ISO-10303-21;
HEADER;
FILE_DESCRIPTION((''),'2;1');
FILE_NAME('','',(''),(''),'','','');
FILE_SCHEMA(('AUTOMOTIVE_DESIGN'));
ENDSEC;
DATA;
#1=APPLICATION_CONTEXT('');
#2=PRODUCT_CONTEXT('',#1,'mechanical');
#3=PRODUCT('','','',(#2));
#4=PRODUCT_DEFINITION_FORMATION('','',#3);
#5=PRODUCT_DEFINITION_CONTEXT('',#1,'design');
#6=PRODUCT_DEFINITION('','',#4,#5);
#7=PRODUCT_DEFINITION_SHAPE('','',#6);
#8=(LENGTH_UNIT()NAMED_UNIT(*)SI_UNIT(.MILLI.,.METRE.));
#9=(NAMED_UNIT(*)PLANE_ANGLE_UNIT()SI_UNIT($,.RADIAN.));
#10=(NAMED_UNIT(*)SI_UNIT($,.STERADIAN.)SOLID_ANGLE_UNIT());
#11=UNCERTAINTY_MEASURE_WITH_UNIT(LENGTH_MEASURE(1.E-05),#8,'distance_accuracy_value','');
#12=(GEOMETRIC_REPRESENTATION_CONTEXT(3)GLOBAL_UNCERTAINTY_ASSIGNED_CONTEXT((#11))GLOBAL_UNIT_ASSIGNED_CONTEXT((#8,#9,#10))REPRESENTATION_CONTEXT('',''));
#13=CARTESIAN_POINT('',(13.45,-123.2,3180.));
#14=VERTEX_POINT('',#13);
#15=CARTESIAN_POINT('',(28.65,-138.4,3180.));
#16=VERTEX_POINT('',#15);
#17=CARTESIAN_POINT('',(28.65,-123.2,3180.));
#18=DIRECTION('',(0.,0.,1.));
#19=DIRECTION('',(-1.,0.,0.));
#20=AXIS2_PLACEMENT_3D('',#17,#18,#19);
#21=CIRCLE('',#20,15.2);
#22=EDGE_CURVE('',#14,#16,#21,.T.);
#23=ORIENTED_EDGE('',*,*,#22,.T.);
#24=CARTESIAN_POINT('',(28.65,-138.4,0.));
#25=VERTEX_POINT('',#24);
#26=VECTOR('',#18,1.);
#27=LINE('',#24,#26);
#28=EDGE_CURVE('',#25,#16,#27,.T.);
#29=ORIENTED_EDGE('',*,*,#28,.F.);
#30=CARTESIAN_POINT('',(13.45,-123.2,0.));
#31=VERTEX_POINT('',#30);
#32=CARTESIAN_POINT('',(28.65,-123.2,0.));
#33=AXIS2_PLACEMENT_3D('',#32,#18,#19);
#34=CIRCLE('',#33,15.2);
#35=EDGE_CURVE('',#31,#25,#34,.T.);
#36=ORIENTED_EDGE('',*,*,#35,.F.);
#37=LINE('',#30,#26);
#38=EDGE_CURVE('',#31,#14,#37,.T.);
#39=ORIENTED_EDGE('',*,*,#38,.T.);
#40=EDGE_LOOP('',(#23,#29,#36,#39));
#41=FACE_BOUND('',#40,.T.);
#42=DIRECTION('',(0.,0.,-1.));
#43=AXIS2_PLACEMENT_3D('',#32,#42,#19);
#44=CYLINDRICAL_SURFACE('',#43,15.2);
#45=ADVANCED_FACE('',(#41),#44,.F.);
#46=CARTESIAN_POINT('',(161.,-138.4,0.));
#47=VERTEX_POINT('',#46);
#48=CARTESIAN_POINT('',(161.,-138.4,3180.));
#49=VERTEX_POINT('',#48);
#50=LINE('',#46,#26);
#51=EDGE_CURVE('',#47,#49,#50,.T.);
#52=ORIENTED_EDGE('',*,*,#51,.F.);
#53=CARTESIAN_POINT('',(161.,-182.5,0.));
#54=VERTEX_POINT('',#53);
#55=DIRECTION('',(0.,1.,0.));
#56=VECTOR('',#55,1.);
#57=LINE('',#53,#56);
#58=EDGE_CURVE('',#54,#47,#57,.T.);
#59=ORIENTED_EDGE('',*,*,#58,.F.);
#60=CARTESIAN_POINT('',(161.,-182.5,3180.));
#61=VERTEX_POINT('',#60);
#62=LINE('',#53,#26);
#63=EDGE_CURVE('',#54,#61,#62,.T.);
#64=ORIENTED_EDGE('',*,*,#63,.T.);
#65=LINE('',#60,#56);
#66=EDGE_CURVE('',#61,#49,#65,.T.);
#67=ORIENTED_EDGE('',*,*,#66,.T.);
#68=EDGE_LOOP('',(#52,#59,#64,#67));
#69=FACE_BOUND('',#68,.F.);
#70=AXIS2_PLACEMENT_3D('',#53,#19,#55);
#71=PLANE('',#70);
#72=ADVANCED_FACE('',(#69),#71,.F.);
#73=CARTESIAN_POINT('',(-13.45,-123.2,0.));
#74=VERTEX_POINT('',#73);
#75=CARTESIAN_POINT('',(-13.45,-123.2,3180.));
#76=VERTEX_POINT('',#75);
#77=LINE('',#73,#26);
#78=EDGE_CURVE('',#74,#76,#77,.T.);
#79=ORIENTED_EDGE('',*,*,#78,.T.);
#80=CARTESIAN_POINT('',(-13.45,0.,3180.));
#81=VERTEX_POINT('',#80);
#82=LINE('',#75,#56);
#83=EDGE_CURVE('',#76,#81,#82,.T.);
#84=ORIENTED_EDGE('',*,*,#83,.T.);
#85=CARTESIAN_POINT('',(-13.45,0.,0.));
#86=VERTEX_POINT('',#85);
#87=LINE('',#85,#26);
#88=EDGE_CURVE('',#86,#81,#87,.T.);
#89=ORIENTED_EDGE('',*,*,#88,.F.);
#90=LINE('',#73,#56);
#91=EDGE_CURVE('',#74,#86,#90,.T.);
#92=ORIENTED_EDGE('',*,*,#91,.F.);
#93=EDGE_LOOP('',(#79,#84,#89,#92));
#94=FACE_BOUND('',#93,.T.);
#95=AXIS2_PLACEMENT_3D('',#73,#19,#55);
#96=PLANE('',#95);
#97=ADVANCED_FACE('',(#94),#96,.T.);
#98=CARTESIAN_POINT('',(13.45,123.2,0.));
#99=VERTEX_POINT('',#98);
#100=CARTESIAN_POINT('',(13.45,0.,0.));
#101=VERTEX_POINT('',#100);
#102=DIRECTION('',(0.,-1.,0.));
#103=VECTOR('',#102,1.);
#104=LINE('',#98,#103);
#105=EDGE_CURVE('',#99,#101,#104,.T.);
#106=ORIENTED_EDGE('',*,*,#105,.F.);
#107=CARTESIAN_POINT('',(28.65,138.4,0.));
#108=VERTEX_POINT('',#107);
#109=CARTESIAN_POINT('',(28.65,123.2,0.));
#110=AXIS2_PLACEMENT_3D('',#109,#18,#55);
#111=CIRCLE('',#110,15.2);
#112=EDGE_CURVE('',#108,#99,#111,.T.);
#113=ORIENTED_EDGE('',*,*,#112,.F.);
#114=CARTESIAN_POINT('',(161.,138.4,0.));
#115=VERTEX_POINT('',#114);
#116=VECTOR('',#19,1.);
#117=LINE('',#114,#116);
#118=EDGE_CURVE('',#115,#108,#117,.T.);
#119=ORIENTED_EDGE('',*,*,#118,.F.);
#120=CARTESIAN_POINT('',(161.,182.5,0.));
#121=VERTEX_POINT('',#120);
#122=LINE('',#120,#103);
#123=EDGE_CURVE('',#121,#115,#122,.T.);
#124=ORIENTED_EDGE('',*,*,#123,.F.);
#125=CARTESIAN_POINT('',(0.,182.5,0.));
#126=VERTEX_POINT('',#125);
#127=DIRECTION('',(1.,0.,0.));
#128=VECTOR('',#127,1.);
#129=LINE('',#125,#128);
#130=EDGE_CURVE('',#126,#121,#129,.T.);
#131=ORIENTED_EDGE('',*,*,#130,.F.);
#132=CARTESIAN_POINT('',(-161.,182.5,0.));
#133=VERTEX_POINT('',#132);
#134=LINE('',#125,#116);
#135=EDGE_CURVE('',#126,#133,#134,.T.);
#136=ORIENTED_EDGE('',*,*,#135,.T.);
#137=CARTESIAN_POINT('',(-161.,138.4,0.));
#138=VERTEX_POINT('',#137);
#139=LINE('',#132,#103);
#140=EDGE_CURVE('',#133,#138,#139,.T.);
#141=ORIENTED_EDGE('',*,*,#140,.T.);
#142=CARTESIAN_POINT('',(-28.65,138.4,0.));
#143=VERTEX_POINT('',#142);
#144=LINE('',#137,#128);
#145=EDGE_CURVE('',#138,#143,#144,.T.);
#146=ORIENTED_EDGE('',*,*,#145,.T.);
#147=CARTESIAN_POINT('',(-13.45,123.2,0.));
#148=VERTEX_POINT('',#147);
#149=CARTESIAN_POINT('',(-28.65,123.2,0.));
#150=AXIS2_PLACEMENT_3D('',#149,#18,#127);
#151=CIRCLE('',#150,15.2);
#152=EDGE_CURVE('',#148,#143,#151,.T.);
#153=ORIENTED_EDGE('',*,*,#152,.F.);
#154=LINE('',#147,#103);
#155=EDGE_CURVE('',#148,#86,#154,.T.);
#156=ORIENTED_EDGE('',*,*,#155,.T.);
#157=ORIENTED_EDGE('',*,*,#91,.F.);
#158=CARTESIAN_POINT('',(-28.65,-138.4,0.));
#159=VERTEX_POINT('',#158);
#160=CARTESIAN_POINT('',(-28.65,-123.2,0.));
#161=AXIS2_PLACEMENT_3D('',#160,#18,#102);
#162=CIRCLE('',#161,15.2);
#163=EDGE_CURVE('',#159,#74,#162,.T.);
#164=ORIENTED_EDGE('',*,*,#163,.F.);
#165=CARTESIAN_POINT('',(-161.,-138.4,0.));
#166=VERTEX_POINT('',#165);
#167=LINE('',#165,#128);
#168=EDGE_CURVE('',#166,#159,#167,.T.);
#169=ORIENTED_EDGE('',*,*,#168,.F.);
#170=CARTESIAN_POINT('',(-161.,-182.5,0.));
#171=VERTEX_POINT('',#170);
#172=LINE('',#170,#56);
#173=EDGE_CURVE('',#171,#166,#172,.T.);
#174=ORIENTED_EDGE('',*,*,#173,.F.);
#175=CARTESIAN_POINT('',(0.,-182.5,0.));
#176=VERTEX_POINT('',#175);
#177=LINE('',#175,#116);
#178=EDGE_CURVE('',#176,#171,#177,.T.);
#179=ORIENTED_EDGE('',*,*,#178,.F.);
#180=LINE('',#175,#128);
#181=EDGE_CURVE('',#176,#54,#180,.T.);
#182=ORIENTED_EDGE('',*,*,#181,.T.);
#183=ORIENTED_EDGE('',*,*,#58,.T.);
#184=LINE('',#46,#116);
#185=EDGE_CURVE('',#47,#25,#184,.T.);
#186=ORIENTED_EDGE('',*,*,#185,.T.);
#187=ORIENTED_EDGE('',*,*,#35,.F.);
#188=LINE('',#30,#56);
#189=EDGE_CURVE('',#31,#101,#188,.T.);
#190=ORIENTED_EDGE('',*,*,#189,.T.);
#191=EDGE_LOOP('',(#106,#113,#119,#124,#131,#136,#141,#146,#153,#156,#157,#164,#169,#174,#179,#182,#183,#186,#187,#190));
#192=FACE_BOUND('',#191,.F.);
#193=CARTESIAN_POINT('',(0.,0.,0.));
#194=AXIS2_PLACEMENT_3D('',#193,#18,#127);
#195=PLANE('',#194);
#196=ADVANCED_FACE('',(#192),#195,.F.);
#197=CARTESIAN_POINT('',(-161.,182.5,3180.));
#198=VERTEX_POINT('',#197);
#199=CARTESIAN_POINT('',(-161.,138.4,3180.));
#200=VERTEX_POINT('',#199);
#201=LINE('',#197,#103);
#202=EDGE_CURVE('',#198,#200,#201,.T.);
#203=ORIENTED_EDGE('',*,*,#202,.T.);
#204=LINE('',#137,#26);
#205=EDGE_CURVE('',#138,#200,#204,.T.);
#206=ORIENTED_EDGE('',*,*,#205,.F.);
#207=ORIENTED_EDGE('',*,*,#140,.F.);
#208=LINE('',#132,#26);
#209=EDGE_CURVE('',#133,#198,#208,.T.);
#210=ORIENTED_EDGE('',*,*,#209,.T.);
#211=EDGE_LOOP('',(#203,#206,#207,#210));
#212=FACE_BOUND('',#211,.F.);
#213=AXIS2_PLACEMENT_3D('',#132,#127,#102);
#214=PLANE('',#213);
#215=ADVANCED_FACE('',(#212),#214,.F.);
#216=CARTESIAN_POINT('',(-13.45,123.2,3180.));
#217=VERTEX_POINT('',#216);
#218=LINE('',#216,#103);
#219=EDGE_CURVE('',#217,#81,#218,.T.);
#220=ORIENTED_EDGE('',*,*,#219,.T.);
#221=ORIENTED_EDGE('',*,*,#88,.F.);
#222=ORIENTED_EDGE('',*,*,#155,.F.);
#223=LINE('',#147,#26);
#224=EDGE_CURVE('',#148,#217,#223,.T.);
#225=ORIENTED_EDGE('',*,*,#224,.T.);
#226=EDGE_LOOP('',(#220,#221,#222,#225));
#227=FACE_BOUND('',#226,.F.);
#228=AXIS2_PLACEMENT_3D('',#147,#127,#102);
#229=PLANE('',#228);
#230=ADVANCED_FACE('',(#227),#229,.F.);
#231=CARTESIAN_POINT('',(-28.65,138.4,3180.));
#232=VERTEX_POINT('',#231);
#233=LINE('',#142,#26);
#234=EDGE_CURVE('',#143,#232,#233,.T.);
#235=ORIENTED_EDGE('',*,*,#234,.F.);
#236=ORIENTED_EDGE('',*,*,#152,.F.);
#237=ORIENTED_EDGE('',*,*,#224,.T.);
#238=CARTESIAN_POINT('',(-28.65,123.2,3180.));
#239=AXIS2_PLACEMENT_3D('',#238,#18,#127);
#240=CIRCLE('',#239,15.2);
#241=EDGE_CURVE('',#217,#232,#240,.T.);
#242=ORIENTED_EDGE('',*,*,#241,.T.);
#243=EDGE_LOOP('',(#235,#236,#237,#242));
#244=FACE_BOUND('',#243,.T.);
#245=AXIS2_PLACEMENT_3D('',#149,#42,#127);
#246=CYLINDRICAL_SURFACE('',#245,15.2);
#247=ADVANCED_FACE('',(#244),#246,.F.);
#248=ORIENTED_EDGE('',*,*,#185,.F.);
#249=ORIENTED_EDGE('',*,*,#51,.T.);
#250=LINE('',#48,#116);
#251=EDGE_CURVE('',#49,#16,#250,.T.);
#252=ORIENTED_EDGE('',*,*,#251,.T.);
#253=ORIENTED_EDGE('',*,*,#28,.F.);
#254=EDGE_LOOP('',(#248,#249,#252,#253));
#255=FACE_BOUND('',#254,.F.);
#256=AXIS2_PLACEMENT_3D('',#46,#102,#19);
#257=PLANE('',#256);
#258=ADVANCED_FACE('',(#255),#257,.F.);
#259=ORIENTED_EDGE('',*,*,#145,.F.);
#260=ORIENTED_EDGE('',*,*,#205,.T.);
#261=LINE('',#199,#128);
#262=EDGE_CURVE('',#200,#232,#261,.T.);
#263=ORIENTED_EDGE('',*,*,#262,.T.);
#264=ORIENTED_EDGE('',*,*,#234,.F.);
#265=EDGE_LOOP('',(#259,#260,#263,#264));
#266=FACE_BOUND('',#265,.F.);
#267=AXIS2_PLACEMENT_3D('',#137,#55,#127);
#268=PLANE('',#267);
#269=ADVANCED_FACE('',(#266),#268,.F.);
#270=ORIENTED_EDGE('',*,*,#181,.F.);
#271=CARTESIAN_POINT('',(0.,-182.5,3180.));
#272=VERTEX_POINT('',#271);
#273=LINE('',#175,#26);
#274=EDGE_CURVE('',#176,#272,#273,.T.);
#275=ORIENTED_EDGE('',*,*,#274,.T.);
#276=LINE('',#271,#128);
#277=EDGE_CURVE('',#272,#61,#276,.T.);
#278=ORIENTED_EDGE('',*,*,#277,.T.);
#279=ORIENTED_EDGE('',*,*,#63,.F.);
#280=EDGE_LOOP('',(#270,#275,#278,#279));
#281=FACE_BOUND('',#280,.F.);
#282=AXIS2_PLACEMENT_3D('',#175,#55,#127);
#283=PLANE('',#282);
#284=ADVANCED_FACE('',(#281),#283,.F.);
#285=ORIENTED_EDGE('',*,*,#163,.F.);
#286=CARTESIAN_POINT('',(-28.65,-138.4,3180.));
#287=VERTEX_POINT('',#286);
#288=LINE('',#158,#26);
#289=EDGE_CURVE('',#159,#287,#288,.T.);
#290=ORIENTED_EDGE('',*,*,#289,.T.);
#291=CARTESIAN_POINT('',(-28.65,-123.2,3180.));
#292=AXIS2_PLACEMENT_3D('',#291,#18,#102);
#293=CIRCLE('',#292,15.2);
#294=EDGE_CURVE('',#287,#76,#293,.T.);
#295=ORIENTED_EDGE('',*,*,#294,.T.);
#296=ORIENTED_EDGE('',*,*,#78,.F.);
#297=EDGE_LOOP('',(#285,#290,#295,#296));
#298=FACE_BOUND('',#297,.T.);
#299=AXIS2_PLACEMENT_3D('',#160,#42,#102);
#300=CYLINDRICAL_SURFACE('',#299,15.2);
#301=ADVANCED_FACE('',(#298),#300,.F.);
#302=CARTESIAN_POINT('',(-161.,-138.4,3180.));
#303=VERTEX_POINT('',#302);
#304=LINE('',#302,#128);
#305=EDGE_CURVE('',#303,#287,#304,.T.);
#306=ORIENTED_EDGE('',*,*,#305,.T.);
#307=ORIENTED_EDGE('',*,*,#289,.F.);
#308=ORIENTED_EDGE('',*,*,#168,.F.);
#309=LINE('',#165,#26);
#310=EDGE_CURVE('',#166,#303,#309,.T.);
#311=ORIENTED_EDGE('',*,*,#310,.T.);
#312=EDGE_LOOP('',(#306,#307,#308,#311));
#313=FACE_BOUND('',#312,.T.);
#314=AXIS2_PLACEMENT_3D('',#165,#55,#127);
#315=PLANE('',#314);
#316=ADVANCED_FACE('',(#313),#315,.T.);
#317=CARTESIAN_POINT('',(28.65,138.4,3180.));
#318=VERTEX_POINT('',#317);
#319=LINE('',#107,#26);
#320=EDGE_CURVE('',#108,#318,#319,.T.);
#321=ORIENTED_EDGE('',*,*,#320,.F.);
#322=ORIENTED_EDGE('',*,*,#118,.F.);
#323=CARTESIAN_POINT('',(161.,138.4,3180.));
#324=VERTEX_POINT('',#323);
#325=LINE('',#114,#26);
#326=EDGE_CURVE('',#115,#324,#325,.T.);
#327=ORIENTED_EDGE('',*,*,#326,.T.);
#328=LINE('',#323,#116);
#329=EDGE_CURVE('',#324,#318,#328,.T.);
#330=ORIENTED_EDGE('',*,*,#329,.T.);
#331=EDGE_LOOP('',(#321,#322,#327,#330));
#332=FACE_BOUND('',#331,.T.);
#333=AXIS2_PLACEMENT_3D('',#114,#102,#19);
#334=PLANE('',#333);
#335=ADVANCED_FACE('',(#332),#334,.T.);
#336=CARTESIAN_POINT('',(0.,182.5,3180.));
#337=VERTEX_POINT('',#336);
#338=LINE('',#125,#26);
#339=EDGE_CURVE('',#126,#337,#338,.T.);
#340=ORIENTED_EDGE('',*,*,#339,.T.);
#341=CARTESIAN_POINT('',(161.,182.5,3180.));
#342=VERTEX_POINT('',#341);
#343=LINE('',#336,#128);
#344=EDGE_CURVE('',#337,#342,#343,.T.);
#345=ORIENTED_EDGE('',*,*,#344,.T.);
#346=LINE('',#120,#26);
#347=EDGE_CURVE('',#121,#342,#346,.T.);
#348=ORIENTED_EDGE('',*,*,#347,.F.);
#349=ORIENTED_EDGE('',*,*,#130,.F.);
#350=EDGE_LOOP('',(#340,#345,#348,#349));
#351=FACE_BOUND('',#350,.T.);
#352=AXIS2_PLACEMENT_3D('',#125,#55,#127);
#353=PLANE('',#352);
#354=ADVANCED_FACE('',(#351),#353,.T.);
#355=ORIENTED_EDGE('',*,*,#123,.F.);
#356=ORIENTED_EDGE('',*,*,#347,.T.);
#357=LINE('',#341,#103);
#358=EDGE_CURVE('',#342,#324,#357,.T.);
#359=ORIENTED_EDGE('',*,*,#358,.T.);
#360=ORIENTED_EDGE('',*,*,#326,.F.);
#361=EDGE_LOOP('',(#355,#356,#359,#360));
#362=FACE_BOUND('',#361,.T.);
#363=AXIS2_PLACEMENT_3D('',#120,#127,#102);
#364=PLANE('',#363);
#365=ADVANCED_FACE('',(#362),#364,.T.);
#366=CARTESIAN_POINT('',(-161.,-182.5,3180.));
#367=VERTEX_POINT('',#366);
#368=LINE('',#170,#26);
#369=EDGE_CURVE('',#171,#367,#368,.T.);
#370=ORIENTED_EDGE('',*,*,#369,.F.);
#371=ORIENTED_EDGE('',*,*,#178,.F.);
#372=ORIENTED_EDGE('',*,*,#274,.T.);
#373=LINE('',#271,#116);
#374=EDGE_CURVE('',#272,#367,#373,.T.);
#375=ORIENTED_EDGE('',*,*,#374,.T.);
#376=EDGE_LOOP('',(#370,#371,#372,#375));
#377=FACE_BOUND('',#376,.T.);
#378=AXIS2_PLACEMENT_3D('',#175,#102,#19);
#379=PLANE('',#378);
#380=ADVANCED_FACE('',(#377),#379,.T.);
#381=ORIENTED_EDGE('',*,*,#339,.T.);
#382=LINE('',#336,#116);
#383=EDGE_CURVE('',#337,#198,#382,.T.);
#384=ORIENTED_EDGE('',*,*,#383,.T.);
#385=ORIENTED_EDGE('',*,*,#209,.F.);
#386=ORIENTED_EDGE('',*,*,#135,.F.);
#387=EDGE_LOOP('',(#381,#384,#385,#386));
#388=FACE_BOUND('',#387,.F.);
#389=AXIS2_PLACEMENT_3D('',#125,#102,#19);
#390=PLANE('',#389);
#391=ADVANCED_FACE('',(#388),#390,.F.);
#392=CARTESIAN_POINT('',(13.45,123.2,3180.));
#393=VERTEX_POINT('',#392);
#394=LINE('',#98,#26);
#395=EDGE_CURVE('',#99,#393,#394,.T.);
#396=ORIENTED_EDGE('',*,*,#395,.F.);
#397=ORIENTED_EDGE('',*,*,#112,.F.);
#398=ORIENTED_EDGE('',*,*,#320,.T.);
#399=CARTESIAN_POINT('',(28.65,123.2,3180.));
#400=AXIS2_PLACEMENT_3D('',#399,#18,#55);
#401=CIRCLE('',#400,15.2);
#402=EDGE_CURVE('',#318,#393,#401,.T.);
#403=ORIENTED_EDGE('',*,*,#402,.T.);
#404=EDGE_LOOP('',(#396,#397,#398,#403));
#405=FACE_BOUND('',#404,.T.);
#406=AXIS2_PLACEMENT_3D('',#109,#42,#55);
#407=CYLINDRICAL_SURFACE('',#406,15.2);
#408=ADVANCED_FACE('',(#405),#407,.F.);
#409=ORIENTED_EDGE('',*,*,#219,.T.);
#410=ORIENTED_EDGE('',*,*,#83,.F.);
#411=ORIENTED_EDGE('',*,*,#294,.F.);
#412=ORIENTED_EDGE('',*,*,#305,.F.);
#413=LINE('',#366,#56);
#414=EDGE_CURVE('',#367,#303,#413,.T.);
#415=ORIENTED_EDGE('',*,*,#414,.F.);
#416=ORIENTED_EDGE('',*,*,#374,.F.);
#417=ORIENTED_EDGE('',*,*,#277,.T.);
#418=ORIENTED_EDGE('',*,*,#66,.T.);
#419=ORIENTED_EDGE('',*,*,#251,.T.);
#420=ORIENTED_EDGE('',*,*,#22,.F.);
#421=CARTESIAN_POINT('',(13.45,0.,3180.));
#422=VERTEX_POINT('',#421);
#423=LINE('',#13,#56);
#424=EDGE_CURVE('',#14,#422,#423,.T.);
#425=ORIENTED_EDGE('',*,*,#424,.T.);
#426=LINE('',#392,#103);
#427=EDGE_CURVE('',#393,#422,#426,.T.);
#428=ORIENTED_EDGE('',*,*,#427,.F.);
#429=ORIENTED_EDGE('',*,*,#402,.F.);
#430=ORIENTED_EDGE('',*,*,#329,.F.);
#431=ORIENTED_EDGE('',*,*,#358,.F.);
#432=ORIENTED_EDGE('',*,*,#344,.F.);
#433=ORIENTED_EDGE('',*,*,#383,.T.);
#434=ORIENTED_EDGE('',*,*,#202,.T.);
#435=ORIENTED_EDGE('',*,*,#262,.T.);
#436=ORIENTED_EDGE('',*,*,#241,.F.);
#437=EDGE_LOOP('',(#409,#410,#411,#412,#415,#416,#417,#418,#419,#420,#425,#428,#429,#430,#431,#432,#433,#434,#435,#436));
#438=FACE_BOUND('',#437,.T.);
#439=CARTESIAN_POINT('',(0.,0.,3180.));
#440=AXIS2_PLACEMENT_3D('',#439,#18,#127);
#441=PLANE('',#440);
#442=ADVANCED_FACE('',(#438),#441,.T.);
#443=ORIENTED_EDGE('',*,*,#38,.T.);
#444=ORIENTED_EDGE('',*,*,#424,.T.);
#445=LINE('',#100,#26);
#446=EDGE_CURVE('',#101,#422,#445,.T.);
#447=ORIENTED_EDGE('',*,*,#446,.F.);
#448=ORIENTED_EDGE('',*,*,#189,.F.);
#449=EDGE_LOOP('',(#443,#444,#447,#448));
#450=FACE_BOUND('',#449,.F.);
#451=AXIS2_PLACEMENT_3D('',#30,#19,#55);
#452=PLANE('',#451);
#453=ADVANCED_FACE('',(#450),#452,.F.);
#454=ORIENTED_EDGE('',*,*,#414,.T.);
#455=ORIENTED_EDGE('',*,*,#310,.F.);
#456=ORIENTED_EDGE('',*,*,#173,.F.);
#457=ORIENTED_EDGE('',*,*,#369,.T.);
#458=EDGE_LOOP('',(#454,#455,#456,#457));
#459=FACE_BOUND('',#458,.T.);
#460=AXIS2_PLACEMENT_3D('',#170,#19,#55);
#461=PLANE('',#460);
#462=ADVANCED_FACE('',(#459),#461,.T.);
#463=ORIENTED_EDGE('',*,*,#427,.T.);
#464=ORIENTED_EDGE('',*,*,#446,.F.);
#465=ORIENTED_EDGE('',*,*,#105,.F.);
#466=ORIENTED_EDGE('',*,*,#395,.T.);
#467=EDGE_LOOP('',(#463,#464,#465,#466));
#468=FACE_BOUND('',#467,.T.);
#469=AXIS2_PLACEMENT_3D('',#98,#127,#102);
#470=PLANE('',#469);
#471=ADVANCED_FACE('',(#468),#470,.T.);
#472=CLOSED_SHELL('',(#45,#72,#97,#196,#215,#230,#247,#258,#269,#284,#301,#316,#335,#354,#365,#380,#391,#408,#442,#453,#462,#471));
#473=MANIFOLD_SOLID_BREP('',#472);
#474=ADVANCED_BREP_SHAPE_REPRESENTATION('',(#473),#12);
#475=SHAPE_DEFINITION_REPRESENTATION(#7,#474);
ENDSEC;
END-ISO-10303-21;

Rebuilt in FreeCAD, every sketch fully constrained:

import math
import FreeCAD as App
import Part
import Sketcher
Q = App.Units.Quantity

doc = App.newDocument("Part")
body = doc.addObject("PartDesign::Body", "Body")

sketch1 = body.newObject("Sketcher::SketchObject", "Sketch")
sketch1.AttachmentSupport = (doc.getObject("XY_Plane"), [""])
sketch1.MapMode = "FlatFace"
sketch1.addGeometry(Part.LineSegment(App.Vector(-161, -138, 0), App.Vector(-161, -182, 0)), False)
sketch1.addGeometry(Part.LineSegment(App.Vector(-161, -182, 0), App.Vector(161, -182, 0)), False)
sketch1.addGeometry(Part.LineSegment(App.Vector(161, -182, 0), App.Vector(161, -138, 0)), False)
sketch1.addGeometry(Part.LineSegment(App.Vector(161, -138, 0), App.Vector(29, -138, 0)), False)
sketch1.addGeometry(Part.ArcOfCircle(Part.Circle(App.Vector(29, -123, 0), App.Vector(0, 0, 1), 15), math.radians(180), math.radians(270)), False)
sketch1.addGeometry(Part.LineSegment(App.Vector(13, -123, 0), App.Vector(13, 123, 0)), False)
sketch1.addGeometry(Part.ArcOfCircle(Part.Circle(App.Vector(29, 123, 0), App.Vector(0, 0, 1), 15), math.radians(90), math.radians(180)), False)
sketch1.addGeometry(Part.LineSegment(App.Vector(29, 138, 0), App.Vector(161, 138, 0)), False)
sketch1.addGeometry(Part.LineSegment(App.Vector(161, 138, 0), App.Vector(161, 182, 0)), False)
sketch1.addGeometry(Part.LineSegment(App.Vector(161, 182, 0), App.Vector(-161, 182, 0)), False)
sketch1.addGeometry(Part.LineSegment(App.Vector(-161, 182, 0), App.Vector(-161, 138, 0)), False)
sketch1.addGeometry(Part.LineSegment(App.Vector(-161, 138, 0), App.Vector(-29, 138, 0)), False)
sketch1.addGeometry(Part.ArcOfCircle(Part.Circle(App.Vector(-29, 123, 0), App.Vector(0, 0, 1), 15), math.radians(0), math.radians(90)), False)
sketch1.addGeometry(Part.LineSegment(App.Vector(-13, 123, 0), App.Vector(-13, -123, 0)), False)
sketch1.addGeometry(Part.ArcOfCircle(Part.Circle(App.Vector(-29, -123, 0), App.Vector(0, 0, 1), 15), math.radians(-90), math.radians(0)), False)
sketch1.addGeometry(Part.LineSegment(App.Vector(-29, -138, 0), App.Vector(-161, -138, 0)), False)
sketch1.addConstraint(Sketcher.Constraint("Coincident", 0, 2, 1, 1))
sketch1.addConstraint(Sketcher.Constraint("Coincident", 1, 2, 2, 1))
sketch1.addConstraint(Sketcher.Constraint("Coincident", 2, 2, 3, 1))
sketch1.addConstraint(Sketcher.Constraint("Tangent", 3, 2, 4, 2))
sketch1.addConstraint(Sketcher.Constraint("Tangent", 4, 1, 5, 1))
sketch1.addConstraint(Sketcher.Constraint("Tangent", 5, 2, 6, 2))
sketch1.addConstraint(Sketcher.Constraint("Tangent", 6, 1, 7, 1))
sketch1.addConstraint(Sketcher.Constraint("Coincident", 7, 2, 8, 1))
sketch1.addConstraint(Sketcher.Constraint("Coincident", 8, 2, 9, 1))
sketch1.addConstraint(Sketcher.Constraint("Coincident", 9, 2, 10, 1))
sketch1.addConstraint(Sketcher.Constraint("Coincident", 10, 2, 11, 1))
sketch1.addConstraint(Sketcher.Constraint("Tangent", 11, 2, 12, 2))
sketch1.addConstraint(Sketcher.Constraint("Tangent", 12, 1, 13, 1))
sketch1.addConstraint(Sketcher.Constraint("Tangent", 13, 2, 14, 2))
sketch1.addConstraint(Sketcher.Constraint("Tangent", 14, 1, 15, 1))
sketch1.addConstraint(Sketcher.Constraint("Coincident", 15, 2, 0, 1))
sketch1.addConstraint(Sketcher.Constraint("Vertical", 0))
sketch1.addConstraint(Sketcher.Constraint("Horizontal", 1))
sketch1.addConstraint(Sketcher.Constraint("Vertical", 2))
sketch1.addConstraint(Sketcher.Constraint("Horizontal", 3))
sketch1.addConstraint(Sketcher.Constraint("Vertical", 5))
sketch1.addConstraint(Sketcher.Constraint("Horizontal", 7))
sketch1.addConstraint(Sketcher.Constraint("Vertical", 8))
sketch1.addConstraint(Sketcher.Constraint("Horizontal", 9))
sketch1.addConstraint(Sketcher.Constraint("Vertical", 10))
sketch1.addConstraint(Sketcher.Constraint("Horizontal", 11))
sketch1.addConstraint(Sketcher.Constraint("Vertical", 13))
sketch1.addConstraint(Sketcher.Constraint("Horizontal", 15))
sketch1.addConstraint(Sketcher.Constraint("Equal", 4, 6))
sketch1.addConstraint(Sketcher.Constraint("Equal", 6, 12))
sketch1.addConstraint(Sketcher.Constraint("Equal", 12, 14))
sketch1.addConstraint(Sketcher.Constraint("Symmetric", 4, 3, 12, 3, -1, 1))
sketch1.addConstraint(Sketcher.Constraint("Symmetric", 0, 2, 8, 2, -1, 1))
sketch1.addConstraint(Sketcher.Constraint("Symmetric", 7, 2, 10, 2, -2))
sketch1.addConstraint(Sketcher.Constraint("Symmetric", 2, 2, 15, 2, -2))
sketch1.addConstraint(Sketcher.Constraint("Radius", 4, Q("15.2 mm")))
sketch1.addConstraint(Sketcher.Constraint("DistanceY", 0, 2, 0, 1, Q("44.1 mm")))
sketch1.addConstraint(Sketcher.Constraint("DistanceX", 0, 2, -1, 1, Q("161 mm")))
sketch1.addConstraint(Sketcher.Constraint("DistanceY", 0, 2, -1, 1, Q("182.5 mm")))
sketch1.addConstraint(Sketcher.Constraint("DistanceX", -1, 1, 4, 1, Q("13.45 mm")))
pad1 = body.newObject("PartDesign::Pad", "Pad")
pad1.Profile = sketch1
pad1.Length = 3180

doc.recompute()
